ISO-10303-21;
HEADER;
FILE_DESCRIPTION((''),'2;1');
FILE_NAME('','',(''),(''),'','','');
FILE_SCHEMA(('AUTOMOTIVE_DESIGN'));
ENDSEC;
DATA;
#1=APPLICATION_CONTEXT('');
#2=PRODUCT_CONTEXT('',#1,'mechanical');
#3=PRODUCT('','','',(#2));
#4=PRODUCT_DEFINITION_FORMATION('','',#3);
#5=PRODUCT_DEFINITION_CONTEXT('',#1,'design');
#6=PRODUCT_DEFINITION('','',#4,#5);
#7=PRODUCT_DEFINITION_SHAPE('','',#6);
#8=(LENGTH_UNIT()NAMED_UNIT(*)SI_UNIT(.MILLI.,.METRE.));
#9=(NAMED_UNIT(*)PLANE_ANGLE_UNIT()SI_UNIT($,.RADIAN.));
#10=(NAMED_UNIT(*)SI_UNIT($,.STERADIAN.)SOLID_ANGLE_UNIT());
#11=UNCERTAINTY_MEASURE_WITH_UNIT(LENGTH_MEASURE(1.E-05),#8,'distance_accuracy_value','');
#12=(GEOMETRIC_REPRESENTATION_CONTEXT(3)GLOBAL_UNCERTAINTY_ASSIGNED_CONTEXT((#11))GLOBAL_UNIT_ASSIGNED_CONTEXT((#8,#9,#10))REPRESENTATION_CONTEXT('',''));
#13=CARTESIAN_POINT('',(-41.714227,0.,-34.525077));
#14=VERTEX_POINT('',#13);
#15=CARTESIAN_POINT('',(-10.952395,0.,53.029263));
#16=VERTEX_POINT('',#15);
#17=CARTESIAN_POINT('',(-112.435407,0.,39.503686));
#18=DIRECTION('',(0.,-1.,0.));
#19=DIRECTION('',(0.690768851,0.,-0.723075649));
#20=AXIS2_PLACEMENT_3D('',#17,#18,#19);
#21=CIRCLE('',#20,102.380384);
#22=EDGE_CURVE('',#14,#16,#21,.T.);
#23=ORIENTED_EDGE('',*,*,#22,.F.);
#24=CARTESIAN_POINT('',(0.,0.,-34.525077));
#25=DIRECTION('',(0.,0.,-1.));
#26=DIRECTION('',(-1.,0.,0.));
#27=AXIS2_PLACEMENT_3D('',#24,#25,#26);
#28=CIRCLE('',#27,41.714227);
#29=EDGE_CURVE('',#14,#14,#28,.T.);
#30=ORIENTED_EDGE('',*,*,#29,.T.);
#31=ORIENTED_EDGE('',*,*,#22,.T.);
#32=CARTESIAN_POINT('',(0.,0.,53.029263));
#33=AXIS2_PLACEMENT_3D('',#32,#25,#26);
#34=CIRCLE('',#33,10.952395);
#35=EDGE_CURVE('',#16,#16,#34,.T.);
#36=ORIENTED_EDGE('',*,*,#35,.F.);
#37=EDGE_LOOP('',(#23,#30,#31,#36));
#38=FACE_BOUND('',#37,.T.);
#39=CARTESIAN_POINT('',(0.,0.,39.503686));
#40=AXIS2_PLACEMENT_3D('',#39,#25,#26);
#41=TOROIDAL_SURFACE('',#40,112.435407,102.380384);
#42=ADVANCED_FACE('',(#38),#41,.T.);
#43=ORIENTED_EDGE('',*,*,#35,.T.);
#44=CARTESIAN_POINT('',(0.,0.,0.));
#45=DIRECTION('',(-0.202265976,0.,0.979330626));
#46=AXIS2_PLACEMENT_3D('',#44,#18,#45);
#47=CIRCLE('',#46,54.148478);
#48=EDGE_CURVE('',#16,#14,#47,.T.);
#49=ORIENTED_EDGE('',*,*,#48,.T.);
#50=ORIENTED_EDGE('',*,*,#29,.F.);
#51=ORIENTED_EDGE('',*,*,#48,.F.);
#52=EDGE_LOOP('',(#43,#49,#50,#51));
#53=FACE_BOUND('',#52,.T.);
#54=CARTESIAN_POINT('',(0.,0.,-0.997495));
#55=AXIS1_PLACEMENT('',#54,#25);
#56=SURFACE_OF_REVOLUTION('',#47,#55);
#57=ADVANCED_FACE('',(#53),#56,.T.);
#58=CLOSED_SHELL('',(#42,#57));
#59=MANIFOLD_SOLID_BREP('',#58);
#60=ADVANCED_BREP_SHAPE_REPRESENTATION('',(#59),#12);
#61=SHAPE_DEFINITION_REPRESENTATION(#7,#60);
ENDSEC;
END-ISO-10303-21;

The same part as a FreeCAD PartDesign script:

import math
import FreeCAD as App
import Part
import Sketcher
from FreeCAD import Vector

doc = App.newDocument("Part")
body = doc.addObject("PartDesign::Body", "Body")

# Sketch on XZ plane
sketch1 = body.newObject("Sketcher::SketchObject", "Sketch")
sketch1.AttachmentSupport = (doc.getObject("XZ_Plane"), [""])
sketch1.MapMode = "FlatFace"
sketch1.addGeometry([
    Part.ArcOfCircle(Part.Circle(Vector(-112, 40, 0), Vector(0, 0, 1), 102), math.radians(-46), math.radians(8)),
    Part.ArcOfCircle(Part.Circle(Vector(0, 0, 0), Vector(0, 0, 1), 54), math.radians(102), math.radians(220)),
], False)
sketch1.addConstraint([
    Sketcher.Constraint("Coincident", 0, 1, 1, 2),
    Sketcher.Constraint("Coincident", 1, 1, 0, 2),
    Sketcher.Constraint("Coincident", 1, 3, -1, 1),
    Sketcher.Constraint("Radius", 0, 102.380384),
    Sketcher.Constraint("Radius", 1, 54.148478),
    Sketcher.Constraint("DistanceX", 0, 3, 0, 1, 70.72118),
    Sketcher.Constraint("DistanceY", 0, 1, 1, 1, 87.55434),
])
revolution = body.newObject("PartDesign::Revolution", "Revolution")
revolution.Profile = sketch1
revolution.ReferenceAxis = (sketch1, ["V_Axis"])
revolution.Angle = 360

doc.recompute()
